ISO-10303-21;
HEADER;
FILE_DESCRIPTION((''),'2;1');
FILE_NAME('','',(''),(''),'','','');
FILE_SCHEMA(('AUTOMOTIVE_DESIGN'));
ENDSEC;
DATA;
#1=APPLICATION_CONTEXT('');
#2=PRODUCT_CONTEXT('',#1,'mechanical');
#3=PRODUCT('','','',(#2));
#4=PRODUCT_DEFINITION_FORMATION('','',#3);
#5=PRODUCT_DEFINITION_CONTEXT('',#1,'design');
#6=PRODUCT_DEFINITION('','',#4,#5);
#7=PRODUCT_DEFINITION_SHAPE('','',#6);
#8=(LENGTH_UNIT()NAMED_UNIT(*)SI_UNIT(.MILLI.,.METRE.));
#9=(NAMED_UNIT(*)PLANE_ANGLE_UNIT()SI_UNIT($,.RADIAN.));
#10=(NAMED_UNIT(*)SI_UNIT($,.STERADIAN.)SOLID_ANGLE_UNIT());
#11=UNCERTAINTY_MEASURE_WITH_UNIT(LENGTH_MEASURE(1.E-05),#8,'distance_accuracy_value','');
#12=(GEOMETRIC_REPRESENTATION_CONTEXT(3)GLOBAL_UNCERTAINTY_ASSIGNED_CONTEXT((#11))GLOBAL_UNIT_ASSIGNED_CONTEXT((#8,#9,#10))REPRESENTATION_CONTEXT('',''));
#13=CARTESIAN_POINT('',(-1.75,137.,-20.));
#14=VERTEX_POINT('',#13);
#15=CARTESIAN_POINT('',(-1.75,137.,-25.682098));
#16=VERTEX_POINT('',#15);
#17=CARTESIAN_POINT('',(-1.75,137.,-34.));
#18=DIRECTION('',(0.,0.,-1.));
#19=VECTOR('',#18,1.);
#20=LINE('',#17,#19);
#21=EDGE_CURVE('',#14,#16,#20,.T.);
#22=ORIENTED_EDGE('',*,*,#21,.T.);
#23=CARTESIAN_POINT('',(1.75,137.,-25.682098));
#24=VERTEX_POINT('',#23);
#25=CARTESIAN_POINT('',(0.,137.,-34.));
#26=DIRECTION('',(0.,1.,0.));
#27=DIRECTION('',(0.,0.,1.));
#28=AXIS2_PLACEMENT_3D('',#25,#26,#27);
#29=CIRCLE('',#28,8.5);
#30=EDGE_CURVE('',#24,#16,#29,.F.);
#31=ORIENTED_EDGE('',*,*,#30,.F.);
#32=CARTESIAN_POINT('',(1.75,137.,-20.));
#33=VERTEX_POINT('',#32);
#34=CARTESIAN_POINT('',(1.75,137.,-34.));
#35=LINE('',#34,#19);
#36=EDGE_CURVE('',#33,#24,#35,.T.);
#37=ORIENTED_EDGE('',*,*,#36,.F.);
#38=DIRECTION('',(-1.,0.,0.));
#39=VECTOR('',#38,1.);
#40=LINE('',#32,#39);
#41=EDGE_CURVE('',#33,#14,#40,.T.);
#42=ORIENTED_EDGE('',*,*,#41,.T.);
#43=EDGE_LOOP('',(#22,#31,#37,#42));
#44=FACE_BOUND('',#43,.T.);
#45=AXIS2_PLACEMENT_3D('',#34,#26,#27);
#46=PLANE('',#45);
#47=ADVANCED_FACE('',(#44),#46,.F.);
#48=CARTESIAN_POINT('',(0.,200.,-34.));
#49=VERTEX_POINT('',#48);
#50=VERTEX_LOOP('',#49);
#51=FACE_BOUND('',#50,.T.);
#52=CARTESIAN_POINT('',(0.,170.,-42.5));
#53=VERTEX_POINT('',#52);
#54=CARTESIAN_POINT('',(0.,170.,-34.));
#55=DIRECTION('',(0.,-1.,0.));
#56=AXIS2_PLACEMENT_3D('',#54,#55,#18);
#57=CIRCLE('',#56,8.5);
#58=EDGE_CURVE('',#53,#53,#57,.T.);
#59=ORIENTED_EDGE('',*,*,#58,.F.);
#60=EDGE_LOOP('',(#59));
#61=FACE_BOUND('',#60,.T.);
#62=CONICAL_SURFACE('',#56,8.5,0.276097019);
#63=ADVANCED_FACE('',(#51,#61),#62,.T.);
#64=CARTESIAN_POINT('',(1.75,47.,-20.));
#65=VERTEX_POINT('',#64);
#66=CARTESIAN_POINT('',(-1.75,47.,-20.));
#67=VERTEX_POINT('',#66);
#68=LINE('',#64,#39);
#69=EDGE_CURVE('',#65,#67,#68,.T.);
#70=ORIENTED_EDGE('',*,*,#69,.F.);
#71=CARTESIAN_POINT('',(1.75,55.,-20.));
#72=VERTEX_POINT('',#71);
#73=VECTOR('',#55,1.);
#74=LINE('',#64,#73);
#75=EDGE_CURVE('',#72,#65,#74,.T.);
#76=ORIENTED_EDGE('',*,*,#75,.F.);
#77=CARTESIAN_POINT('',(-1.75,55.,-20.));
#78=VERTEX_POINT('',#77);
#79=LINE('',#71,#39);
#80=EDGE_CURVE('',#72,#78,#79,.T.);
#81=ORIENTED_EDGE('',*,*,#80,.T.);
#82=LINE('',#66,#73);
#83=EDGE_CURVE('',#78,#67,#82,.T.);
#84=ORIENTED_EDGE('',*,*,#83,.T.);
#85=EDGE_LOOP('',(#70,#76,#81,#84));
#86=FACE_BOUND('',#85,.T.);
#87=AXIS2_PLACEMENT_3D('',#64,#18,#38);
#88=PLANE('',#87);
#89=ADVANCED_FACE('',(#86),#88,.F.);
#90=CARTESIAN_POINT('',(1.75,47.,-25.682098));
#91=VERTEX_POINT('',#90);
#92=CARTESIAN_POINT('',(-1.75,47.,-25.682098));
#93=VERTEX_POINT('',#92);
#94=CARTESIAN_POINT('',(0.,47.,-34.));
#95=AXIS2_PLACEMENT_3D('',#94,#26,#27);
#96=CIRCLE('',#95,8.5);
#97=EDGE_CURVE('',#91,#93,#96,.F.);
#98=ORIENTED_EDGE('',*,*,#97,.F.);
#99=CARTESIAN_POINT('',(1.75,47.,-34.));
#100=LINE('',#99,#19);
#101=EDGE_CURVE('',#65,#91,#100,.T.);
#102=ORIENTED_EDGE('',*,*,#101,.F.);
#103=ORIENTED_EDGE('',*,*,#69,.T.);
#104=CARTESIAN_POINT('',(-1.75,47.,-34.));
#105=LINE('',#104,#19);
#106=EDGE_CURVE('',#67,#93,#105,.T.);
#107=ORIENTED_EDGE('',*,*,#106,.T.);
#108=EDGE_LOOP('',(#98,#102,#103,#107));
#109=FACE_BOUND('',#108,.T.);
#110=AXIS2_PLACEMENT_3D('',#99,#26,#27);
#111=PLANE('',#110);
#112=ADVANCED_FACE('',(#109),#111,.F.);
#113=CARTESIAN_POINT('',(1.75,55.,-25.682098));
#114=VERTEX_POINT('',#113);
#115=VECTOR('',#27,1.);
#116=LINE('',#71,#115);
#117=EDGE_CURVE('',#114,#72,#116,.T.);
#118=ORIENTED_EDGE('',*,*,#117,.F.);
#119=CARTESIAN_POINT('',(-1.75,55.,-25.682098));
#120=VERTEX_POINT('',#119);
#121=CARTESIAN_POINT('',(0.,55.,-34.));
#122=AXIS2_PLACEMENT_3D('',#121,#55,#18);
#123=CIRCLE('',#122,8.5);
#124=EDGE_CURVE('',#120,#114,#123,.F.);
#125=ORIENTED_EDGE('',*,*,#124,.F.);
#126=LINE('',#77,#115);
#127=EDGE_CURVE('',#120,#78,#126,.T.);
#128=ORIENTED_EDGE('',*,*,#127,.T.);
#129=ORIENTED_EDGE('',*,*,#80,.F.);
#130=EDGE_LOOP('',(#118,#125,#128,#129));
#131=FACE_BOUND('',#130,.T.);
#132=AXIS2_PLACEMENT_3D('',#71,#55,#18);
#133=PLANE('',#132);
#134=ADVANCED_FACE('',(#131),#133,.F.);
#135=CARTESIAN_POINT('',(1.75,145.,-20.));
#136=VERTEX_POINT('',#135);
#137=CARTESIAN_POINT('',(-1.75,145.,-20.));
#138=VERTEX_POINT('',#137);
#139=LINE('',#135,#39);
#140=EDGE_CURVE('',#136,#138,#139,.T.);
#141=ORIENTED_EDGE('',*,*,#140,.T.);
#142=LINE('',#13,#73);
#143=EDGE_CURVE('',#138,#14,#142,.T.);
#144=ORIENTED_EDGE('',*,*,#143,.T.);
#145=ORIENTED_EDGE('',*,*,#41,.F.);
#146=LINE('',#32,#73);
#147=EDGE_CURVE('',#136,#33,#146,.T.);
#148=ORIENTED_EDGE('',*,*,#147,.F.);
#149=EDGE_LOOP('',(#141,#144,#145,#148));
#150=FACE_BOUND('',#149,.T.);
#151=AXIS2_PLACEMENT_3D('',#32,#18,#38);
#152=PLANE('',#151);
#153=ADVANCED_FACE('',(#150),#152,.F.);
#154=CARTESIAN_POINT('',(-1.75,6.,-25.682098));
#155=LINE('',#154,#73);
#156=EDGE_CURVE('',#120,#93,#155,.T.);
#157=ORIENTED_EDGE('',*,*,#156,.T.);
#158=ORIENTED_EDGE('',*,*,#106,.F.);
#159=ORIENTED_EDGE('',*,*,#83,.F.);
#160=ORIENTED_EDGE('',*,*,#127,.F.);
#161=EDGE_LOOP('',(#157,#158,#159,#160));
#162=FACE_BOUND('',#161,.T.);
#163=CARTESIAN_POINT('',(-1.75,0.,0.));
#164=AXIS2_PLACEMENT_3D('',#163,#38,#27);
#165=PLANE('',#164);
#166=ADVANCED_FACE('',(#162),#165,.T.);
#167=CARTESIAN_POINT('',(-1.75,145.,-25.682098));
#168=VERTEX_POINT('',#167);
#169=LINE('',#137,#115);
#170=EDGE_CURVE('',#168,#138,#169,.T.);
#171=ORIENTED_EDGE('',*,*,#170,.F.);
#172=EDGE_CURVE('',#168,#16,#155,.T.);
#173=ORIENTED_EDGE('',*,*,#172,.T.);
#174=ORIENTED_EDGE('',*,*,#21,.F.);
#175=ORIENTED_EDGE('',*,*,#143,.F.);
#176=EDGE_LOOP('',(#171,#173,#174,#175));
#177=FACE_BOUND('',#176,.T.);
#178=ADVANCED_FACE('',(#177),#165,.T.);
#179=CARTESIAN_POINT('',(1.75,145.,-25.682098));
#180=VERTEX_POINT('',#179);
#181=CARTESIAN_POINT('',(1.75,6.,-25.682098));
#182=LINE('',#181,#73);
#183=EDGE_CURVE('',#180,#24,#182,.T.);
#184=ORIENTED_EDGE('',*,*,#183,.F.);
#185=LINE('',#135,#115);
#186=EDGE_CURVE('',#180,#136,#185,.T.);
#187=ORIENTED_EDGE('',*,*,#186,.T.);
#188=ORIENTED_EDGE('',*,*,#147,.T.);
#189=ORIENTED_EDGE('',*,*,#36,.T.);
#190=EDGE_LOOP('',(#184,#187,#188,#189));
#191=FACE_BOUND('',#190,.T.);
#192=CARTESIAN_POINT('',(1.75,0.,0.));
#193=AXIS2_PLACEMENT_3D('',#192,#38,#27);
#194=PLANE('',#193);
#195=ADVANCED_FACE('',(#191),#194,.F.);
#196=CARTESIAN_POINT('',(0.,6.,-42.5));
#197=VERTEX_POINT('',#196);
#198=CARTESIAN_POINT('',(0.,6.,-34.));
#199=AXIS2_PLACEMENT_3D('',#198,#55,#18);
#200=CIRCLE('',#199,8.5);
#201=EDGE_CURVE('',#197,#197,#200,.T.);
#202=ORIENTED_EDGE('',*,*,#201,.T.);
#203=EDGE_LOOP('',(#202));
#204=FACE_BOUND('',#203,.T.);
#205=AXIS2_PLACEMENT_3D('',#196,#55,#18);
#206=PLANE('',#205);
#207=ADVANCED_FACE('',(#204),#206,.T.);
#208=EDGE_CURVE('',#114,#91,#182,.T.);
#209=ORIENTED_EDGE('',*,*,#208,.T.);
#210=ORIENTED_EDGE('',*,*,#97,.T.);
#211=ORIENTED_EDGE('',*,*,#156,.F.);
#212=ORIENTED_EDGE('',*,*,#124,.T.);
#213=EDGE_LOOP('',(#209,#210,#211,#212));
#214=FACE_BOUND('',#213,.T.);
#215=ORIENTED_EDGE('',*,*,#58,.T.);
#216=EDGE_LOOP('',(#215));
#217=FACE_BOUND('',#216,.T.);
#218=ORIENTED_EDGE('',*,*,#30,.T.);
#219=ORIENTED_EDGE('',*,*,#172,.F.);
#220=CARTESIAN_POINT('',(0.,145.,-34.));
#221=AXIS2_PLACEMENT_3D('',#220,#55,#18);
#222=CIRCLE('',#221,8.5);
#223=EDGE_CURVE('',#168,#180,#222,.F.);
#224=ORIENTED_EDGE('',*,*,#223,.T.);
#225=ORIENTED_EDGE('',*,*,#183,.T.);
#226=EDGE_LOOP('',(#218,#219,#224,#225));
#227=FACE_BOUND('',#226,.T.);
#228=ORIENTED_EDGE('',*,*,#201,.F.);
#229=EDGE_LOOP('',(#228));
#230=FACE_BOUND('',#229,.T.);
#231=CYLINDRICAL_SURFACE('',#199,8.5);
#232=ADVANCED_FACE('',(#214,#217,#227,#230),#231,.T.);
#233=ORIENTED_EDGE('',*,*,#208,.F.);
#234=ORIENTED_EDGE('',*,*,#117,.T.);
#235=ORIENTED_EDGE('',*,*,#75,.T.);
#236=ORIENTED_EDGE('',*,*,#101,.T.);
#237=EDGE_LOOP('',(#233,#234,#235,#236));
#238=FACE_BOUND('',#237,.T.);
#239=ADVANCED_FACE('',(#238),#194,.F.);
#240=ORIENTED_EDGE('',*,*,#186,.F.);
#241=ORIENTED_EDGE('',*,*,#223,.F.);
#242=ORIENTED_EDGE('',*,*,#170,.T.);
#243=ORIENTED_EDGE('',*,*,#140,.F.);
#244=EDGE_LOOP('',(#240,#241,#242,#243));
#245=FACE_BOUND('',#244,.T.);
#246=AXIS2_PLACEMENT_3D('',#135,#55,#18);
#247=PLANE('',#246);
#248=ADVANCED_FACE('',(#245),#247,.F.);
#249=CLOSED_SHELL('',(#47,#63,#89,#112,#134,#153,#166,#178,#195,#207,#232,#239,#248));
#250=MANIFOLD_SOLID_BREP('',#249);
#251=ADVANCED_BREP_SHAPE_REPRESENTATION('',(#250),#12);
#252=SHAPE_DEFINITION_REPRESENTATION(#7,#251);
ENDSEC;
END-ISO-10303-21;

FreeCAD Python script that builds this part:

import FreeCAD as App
import Part
import Sketcher

V = App.Vector

doc = App.newDocument("Part")
body = doc.addObject("PartDesign::Body", "Body")

# Sketch on YZ plane
sketch1 = doc.addObject("Sketcher::SketchObject", "Sketch")
body.addObject(sketch1)
sketch1.AttachmentSupport = (doc.YZ_Plane, [""])
sketch1.MapMode = "FlatFace"
sketch1.addGeometry(Part.LineSegment(V(170, -42, 0), V(200, -34, 0)), False)
sketch1.addGeometry(Part.LineSegment(V(200, -34, 0), V(6, -34, 0)), False)
sketch1.addGeometry(Part.LineSegment(V(6, -34, 0), V(6, -42, 0)), False)
sketch1.addGeometry(Part.LineSegment(V(6, -42, 0), V(170, -42, 0)), False)
sketch1.addGeometry(Part.LineSegment(V(6, -34, 0), V(200, -34, 0)), True)  # axis
sketch1.addConstraint(Sketcher.Constraint("Coincident", 0, 2, 1, 1))
sketch1.addConstraint(Sketcher.Constraint("Coincident", 1, 2, 2, 1))
sketch1.addConstraint(Sketcher.Constraint("Coincident", 2, 2, 3, 1))
sketch1.addConstraint(Sketcher.Constraint("Coincident", 3, 2, 0, 1))
sketch1.addConstraint(Sketcher.Constraint("Horizontal", 1))
sketch1.addConstraint(Sketcher.Constraint("Vertical", 2))
sketch1.addConstraint(Sketcher.Constraint("Horizontal", 3))
sketch1.addConstraint(Sketcher.Constraint("Horizontal", 4))
sketch1.addConstraint(Sketcher.Constraint("Coincident", 4, 1, 1, 2))
sketch1.addConstraint(Sketcher.Constraint("Equal", 1, 4))
sketch1.addConstraint(Sketcher.Constraint("DistanceX", 1, 2, 1, 1, 194.0))
sketch1.addConstraint(Sketcher.Constraint("DistanceX", 3, 1, 3, 2, 164.0))
sketch1.addConstraint(Sketcher.Constraint("DistanceY", 2, 2, 2, 1, 8.5))
sketch1.addConstraint(Sketcher.Constraint("DistanceX", -1, 1, 0, 2, 200.0))
sketch1.addConstraint(Sketcher.Constraint("DistanceY", 0, 2, -1, 1, 34.0))
revolution = doc.addObject("PartDesign::Revolution", "Revolution")
body.addObject(revolution)
revolution.Profile = sketch1
revolution.ReferenceAxis = (sketch1, ["Axis0"])
revolution.Angle = 360

# Sketch on YZ plane
sketch2 = doc.addObject("Sketcher::SketchObject", "Sketch001")
body.addObject(sketch2)
sketch2.AttachmentSupport = (doc.YZ_Plane, [""])
sketch2.MapMode = "FlatFace"
sketch2.addGeometry(Part.LineSegment(V(145, -20, 0), V(137, -20, 0)), False)
sketch2.addGeometry(Part.LineSegment(V(137, -20, 0), V(137, -34, 0)), False)
sketch2.addGeometry(Part.LineSegment(V(137, -34, 0), V(145, -34, 0)), False)
sketch2.addGeometry(Part.LineSegment(V(145, -34, 0), V(145, -20, 0)), False)
sketch2.addGeometry(Part.LineSegment(V(55, -20, 0), V(47, -20, 0)), False)
sketch2.addGeometry(Part.LineSegment(V(47, -20, 0), V(47, -34, 0)), False)
sketch2.addGeometry(Part.LineSegment(V(47, -34, 0), V(55, -34, 0)), False)
sketch2.addGeometry(Part.LineSegment(V(55, -34, 0), V(55, -20, 0)), False)
sketch2.addConstraint(Sketcher.Constraint("Coincident", 0, 2, 1, 1))
sketch2.addConstraint(Sketcher.Constraint("Coincident", 1, 2, 2, 1))
sketch2.addConstraint(Sketcher.Constraint("Coincident", 2, 2, 3, 1))
sketch2.addConstraint(Sketcher.Constraint("Coincident", 3, 2, 0, 1))
sketch2.addConstraint(Sketcher.Constraint("Coincident", 4, 2, 5, 1))
sketch2.addConstraint(Sketcher.Constraint("Coincident", 5, 2, 6, 1))
sketch2.addConstraint(Sketcher.Constraint("Coincident", 6, 2, 7, 1))
sketch2.addConstraint(Sketcher.Constraint("Coincident", 7, 2, 4, 1))
sketch2.addConstraint(Sketcher.Constraint("Horizontal", 0))
sketch2.addConstraint(Sketcher.Constraint("Vertical", 1))
sketch2.addConstraint(Sketcher.Constraint("Horizontal", 2))
sketch2.addConstraint(Sketcher.Constraint("Vertical", 3))
sketch2.addConstraint(Sketcher.Constraint("Horizontal", 4))
sketch2.addConstraint(Sketcher.Constraint("Vertical", 5))
sketch2.addConstraint(Sketcher.Constraint("Horizontal", 6))
sketch2.addConstraint(Sketcher.Constraint("Vertical", 7))
sketch2.addConstraint(Sketcher.Constraint("Horizontal", 3, 2, 4, 2))
sketch2.addConstraint(Sketcher.Constraint("Horizontal", 2, 2, 5, 2))
sketch2.addConstraint(Sketcher.Constraint("Equal", 2, 4))
sketch2.addConstraint(Sketcher.Constraint("DistanceX", 0, 2, 0, 1, 8.0))
sketch2.addConstraint(Sketcher.Constraint("DistanceY", 1, 2, 1, 1, 14.0))
sketch2.addConstraint(Sketcher.Constraint("DistanceX", -1, 1, 0, 2, 137.0))
sketch2.addConstraint(Sketcher.Constraint("DistanceY", 0, 2, -1, 1, 20.0))
sketch2.addConstraint(Sketcher.Constraint("DistanceX", -1, 1, 4, 2, 47.0))
pad1 = doc.addObject("PartDesign::Pad", "Pad")
body.addObject(pad1)
pad1.Profile = sketch2
pad1.Length = 3.5
pad1.Midplane = True

doc.recompute()
